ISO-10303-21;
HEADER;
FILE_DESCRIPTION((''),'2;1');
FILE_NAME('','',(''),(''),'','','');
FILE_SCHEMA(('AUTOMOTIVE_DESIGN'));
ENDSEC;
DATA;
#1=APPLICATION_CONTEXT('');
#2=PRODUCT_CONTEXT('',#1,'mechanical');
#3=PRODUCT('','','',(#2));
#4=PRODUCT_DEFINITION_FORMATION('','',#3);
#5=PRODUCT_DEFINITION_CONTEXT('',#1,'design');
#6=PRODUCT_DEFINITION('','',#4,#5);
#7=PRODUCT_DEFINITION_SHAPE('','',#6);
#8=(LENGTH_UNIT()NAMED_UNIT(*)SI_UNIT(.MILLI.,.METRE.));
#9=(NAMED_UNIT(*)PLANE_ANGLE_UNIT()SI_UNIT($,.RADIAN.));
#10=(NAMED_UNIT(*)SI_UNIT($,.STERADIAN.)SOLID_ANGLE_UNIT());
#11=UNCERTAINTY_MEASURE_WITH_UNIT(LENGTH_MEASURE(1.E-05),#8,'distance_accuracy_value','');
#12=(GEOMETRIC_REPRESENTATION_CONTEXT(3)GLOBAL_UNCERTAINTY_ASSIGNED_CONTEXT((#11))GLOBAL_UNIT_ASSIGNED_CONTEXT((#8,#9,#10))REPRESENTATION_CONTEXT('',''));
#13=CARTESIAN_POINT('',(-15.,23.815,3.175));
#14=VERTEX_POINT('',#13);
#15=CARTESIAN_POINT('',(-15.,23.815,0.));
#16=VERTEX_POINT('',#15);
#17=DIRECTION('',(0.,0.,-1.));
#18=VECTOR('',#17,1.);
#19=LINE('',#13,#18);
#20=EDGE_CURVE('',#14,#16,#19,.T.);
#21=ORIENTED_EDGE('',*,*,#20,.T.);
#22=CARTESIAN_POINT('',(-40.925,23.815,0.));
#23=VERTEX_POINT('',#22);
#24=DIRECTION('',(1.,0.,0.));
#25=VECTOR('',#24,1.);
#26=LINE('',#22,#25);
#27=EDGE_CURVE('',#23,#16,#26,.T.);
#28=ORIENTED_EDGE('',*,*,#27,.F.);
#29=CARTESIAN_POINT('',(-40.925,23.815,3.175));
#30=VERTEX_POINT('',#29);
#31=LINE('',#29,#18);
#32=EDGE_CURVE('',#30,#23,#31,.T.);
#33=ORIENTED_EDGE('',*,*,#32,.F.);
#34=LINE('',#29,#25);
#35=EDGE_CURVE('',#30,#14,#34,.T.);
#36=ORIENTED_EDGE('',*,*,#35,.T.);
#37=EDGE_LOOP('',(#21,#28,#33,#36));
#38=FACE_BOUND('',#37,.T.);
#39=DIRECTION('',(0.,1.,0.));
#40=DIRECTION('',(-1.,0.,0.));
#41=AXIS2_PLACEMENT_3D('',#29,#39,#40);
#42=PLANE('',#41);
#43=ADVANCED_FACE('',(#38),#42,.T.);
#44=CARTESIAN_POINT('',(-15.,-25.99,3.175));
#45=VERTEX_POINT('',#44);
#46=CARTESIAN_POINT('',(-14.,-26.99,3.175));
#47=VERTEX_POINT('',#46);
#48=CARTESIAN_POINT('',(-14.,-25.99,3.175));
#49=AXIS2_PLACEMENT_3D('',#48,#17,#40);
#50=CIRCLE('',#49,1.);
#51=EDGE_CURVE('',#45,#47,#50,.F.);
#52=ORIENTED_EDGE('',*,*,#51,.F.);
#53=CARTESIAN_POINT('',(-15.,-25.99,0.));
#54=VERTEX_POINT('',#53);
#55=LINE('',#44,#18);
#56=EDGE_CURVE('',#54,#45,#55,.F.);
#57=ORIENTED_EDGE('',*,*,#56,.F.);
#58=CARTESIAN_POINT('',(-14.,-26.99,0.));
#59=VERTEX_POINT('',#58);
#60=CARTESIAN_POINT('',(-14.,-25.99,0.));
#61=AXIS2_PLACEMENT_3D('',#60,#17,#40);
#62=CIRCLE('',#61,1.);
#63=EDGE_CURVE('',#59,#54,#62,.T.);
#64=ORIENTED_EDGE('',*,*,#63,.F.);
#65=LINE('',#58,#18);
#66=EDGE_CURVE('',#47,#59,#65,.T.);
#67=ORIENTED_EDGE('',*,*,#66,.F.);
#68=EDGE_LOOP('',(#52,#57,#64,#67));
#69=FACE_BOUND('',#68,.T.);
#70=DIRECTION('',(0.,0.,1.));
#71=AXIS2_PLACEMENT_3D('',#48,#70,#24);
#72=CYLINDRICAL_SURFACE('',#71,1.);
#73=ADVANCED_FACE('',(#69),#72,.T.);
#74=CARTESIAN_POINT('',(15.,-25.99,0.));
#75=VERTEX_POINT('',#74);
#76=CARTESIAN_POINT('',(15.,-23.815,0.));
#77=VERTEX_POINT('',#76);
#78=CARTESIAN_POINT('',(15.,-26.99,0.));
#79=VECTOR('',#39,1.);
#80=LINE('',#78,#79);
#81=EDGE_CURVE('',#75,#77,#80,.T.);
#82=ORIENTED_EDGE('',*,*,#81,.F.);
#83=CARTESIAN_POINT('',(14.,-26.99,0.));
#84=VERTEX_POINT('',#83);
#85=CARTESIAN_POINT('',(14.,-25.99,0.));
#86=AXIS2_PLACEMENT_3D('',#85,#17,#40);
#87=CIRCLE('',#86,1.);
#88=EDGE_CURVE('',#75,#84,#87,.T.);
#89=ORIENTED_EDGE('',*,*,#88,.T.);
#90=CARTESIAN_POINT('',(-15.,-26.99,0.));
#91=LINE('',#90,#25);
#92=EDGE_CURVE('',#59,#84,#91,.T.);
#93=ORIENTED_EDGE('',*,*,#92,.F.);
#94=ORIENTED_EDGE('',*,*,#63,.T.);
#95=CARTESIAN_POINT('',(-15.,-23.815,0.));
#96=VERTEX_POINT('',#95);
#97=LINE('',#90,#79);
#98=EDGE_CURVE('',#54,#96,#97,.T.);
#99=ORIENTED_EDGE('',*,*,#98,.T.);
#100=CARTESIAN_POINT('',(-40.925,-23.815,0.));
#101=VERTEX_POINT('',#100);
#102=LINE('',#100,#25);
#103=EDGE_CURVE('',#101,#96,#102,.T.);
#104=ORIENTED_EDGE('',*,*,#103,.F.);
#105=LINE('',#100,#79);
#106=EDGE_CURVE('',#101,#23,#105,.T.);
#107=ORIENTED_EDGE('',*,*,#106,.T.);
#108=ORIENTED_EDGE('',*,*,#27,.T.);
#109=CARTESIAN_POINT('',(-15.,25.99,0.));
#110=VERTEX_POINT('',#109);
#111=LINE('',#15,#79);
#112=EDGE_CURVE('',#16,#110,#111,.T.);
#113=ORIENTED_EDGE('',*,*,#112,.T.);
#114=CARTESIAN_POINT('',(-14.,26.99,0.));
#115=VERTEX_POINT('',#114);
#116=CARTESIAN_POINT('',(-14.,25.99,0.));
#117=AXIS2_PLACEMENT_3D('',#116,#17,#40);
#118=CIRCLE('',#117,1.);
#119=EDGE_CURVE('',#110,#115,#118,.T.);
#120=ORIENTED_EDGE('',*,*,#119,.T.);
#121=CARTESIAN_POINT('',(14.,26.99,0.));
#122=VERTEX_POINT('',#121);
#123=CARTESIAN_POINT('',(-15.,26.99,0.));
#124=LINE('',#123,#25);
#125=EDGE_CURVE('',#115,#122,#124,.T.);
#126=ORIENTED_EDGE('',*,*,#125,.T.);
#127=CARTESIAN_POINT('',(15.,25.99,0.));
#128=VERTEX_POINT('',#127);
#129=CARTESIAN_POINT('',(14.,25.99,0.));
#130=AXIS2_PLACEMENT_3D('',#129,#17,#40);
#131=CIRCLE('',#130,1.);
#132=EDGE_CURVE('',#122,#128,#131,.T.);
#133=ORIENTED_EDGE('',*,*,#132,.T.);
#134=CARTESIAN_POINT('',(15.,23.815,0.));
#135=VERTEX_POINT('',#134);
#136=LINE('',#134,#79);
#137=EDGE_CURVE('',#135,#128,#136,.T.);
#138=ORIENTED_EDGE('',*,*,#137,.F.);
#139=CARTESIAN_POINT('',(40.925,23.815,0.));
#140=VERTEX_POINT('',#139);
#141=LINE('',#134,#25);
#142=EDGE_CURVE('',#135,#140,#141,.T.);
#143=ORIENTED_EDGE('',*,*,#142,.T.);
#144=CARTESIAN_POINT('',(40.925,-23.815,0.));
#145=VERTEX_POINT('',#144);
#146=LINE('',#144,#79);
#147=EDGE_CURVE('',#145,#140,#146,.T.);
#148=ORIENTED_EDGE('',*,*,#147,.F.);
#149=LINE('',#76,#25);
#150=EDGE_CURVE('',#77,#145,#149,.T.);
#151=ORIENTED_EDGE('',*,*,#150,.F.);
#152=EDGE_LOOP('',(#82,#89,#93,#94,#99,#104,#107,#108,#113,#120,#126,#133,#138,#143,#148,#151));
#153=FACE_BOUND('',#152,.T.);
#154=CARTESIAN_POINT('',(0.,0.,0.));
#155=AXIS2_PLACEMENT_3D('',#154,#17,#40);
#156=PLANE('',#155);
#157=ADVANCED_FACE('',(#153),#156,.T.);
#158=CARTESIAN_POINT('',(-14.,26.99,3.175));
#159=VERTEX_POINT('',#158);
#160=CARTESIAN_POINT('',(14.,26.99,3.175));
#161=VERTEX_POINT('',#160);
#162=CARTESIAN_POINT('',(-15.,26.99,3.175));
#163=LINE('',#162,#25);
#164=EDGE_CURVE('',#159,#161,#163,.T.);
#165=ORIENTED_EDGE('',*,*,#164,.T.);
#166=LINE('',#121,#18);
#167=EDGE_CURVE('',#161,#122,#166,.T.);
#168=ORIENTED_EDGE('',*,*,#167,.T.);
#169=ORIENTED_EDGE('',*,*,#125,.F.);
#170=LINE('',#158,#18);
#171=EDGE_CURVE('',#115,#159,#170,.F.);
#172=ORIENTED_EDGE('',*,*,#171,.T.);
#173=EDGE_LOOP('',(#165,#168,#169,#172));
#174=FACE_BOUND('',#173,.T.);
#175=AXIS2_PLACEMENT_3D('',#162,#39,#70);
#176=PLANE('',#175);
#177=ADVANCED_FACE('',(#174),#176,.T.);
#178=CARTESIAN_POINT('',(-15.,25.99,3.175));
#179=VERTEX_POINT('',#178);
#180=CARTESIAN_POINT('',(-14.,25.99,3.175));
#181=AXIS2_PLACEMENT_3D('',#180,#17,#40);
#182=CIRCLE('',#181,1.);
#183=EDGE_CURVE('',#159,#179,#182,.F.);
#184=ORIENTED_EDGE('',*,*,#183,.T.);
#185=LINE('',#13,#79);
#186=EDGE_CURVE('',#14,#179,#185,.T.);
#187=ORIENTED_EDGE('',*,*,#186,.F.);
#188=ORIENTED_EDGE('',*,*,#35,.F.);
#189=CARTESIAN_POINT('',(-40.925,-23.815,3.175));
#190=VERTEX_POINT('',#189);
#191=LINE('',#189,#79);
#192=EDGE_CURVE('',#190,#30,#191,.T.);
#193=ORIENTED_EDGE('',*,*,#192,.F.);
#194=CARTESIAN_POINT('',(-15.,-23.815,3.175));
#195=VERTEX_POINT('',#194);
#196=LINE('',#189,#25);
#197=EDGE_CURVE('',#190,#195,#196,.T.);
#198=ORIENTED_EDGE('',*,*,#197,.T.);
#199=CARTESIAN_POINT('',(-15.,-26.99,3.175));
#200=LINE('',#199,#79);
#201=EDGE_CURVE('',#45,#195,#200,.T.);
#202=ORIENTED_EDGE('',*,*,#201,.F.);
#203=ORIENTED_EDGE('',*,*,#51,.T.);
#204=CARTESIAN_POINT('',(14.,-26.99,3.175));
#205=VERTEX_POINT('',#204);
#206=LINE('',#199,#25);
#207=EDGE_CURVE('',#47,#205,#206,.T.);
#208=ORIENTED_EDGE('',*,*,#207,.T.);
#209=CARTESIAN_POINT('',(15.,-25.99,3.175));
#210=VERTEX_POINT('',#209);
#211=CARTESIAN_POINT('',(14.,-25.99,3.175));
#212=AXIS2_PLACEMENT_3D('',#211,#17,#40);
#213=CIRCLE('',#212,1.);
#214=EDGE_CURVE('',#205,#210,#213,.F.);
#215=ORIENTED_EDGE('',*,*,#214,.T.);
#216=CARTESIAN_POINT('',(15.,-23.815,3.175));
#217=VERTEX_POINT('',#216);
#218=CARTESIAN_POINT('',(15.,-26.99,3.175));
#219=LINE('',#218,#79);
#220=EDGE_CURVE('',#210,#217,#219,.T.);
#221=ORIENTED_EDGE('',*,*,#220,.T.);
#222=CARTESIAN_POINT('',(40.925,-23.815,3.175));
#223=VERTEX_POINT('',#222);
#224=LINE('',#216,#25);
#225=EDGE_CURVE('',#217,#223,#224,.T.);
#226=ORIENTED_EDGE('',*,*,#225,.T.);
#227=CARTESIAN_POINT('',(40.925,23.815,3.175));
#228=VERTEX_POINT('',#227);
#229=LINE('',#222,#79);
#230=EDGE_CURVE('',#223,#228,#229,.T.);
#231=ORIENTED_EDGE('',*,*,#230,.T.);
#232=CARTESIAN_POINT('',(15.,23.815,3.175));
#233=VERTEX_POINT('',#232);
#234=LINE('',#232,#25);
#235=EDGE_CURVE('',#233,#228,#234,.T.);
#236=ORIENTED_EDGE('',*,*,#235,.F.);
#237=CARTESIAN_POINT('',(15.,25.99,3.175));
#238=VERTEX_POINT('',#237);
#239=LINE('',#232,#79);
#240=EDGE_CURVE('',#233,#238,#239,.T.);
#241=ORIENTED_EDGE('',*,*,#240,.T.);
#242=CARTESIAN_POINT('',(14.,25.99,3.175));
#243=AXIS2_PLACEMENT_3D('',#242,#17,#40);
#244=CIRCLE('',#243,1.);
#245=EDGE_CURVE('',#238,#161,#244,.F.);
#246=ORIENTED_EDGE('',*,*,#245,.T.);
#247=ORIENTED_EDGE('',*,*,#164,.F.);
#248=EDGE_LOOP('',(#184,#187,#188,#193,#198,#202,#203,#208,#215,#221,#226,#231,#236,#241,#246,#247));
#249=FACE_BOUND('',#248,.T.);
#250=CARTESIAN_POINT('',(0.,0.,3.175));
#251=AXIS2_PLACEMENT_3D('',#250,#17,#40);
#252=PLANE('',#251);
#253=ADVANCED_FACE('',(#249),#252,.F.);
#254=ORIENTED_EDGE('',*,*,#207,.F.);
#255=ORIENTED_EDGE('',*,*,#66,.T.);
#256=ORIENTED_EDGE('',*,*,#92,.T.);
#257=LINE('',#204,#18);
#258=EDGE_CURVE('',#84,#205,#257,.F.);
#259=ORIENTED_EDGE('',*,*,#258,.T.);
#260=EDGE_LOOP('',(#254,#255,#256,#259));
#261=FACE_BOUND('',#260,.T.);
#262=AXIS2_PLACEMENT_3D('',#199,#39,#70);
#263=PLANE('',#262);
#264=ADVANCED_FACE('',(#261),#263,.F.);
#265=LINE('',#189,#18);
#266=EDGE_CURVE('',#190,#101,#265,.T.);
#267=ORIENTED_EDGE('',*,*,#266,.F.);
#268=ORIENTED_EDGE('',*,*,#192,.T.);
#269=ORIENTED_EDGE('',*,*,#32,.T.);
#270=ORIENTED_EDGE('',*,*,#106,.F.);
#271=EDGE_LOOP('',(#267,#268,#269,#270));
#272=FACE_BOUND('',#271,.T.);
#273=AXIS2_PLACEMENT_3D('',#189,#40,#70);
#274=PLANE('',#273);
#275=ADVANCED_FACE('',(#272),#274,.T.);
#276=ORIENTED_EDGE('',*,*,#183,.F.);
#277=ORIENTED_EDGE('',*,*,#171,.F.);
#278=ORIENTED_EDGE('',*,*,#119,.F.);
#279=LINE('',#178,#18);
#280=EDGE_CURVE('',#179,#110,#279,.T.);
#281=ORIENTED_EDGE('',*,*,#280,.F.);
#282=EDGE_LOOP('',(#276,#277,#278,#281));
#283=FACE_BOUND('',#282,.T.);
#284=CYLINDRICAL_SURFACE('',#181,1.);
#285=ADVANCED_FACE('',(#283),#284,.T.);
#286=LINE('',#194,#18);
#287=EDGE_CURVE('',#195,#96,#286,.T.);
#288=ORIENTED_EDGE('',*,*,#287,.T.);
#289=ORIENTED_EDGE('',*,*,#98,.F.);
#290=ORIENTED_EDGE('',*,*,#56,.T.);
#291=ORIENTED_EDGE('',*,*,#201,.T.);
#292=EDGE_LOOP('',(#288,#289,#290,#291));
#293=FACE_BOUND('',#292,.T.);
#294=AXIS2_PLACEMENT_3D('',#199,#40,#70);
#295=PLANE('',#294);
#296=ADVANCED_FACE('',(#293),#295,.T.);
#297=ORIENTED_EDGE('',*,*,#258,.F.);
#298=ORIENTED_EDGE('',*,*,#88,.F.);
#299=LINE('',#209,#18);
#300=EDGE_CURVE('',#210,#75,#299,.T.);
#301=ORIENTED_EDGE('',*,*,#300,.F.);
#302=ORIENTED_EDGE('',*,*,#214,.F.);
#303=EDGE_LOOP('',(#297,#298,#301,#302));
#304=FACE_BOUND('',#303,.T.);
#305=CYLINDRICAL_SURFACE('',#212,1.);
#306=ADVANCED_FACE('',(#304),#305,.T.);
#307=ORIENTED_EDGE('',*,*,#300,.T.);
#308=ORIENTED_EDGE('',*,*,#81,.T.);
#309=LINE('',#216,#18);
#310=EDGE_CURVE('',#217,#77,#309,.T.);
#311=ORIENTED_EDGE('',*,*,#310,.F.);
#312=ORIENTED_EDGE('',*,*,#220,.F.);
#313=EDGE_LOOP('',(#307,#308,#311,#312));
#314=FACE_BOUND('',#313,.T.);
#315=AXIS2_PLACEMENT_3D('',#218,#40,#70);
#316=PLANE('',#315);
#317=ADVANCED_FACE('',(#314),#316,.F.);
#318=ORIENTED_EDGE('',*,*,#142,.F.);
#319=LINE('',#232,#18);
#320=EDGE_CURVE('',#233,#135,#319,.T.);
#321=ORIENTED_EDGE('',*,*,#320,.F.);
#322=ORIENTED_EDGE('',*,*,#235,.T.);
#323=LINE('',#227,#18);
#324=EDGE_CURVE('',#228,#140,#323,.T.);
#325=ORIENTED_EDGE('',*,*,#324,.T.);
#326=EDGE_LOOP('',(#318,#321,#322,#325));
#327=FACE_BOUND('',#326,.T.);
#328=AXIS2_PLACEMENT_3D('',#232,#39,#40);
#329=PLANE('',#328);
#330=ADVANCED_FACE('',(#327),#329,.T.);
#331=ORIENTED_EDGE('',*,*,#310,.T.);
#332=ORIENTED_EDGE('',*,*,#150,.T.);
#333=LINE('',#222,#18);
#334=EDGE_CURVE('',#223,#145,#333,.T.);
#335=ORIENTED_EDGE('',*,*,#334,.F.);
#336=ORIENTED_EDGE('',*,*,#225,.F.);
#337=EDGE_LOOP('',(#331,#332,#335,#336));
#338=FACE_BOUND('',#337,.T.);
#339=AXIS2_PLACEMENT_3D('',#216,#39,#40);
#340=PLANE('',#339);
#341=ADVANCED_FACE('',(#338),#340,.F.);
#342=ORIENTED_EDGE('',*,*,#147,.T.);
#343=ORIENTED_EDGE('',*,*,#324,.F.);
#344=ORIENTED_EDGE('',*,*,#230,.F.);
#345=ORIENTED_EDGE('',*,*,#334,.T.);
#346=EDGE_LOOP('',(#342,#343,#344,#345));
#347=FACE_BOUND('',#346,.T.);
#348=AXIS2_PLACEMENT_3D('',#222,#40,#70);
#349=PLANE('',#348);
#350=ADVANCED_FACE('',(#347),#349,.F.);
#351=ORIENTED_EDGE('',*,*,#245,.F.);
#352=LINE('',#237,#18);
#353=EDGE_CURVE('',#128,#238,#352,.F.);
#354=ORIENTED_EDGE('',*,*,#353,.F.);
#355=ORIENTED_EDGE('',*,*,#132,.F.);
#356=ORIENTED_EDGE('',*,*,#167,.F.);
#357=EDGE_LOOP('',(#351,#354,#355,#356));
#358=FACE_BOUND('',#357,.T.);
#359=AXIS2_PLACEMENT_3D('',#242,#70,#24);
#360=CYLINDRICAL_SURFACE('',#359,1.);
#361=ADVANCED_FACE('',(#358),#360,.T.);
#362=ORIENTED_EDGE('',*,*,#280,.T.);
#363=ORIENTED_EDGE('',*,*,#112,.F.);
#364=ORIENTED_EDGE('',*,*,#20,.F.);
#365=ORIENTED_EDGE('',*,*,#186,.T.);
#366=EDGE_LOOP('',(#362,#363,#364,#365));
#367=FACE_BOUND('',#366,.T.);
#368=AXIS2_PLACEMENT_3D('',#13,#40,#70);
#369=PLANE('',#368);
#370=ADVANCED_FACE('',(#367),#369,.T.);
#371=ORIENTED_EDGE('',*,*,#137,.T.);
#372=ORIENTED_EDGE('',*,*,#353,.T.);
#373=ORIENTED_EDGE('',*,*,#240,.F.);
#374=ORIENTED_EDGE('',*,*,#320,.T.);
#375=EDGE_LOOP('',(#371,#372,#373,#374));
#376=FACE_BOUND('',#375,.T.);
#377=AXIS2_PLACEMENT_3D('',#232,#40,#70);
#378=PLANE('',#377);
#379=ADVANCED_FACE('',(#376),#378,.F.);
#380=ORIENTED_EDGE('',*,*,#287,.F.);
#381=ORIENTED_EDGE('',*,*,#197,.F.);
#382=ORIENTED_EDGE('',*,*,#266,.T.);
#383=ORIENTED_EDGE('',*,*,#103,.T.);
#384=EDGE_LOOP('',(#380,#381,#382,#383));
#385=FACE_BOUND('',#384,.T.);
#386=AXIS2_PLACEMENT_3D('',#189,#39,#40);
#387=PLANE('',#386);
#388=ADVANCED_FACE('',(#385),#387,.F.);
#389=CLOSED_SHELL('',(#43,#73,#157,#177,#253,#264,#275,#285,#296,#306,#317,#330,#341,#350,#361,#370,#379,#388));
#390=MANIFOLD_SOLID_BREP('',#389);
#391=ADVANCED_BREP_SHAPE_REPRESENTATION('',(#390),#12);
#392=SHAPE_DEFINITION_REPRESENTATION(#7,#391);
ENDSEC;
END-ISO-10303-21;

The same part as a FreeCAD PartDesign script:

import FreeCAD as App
import Part
import Sketcher
from FreeCAD import Vector
Q = App.Units.Quantity


def edges_at(feature, points):
    """Names of the edges that pass closest to the given points."""
    edges = feature.Shape.Edges
    near = lambda p: min(range(len(edges)), key=lambda i: edges[i].distToShape(Part.Vertex(*p))[0])
    return sorted({f"Edge{near(p) + 1}" for p in points})


def add_polygon(sketch, points):
    """Adds a closed chain of lines whose ends are joined by coincident constraints."""
    first, n = sketch.GeometryCount, len(points)
    for a, b in zip(points, points[1:] + points[:1]):
        sketch.addGeometry(Part.LineSegment(App.Vector(*a, 0), App.Vector(*b, 0)), False)
    for i in range(n):
        sketch.addConstraint(Sketcher.Constraint("Coincident", first + i, 2, first + (i + 1) % n, 1))

doc = App.newDocument("Part")
body = doc.addObject("PartDesign::Body", "Body")

# Sketch on XY plane
sketch1 = body.newObject("Sketcher::SketchObject", "Sketch")
sketch1.AttachmentSupport = (doc.getObject("XY_Plane"), [""])
sketch1.MapMode = "FlatFace"
add_polygon(sketch1, [(-40.925, -23.815), (-15, -23.815), (-15, -26.99), (15, -26.99), (15, -23.815), (40.925, -23.815), (40.925, 23.815), (15, 23.815), (15, 26.99), (-15, 26.99), (-15, 23.815), (-40.925, 23.815)])  # lines 0-11
sketch1.addConstraint(Sketcher.Constraint("Horizontal", 0))
sketch1.addConstraint(Sketcher.Constraint("Vertical", 1))
sketch1.addConstraint(Sketcher.Constraint("Horizontal", 2))
sketch1.addConstraint(Sketcher.Constraint("Vertical", 3))
sketch1.addConstraint(Sketcher.Constraint("Horizontal", 4))
sketch1.addConstraint(Sketcher.Constraint("Vertical", 5))
sketch1.addConstraint(Sketcher.Constraint("Horizontal", 6))
sketch1.addConstraint(Sketcher.Constraint("Vertical", 7))
sketch1.addConstraint(Sketcher.Constraint("Horizontal", 8))
sketch1.addConstraint(Sketcher.Constraint("Vertical", 9))
sketch1.addConstraint(Sketcher.Constraint("Horizontal", 10))
sketch1.addConstraint(Sketcher.Constraint("Vertical", 11))
sketch1.addConstraint(Sketcher.Constraint("Symmetric", 0, 2, 6, 2, -1, 1))
sketch1.addConstraint(Sketcher.Constraint("Symmetric", 2, 2, 8, 2, -1, 1))
sketch1.addConstraint(Sketcher.Constraint("Symmetric", 4, 2, 10, 2, -1, 1))
sketch1.addConstraint(Sketcher.Constraint("Symmetric", 0, 2, 3, 2, -2))
sketch1.addConstraint(Sketcher.Constraint("DistanceX", 2, 1, 2, 2, Q("30 mm")))
sketch1.addConstraint(Sketcher.Constraint("DistanceY", 5, 1, 5, 2, Q("47.63 mm")))
sketch1.addConstraint(Sketcher.Constraint("DistanceX", 0, 1, 0, 2, Q("25.925 mm")))
sketch1.addConstraint(Sketcher.Constraint("DistanceY", 1, 2, 1, 1, Q("3.175 mm")))
pad1 = body.newObject("PartDesign::Pad", "Pad")
pad1.Profile = sketch1
pad1.Length = 3.175
doc.recompute()

fillet = body.newObject("PartDesign::Fillet", "Fillet")
fillet.Base = (pad1, edges_at(pad1, [
    (-15, -26.99, 1.587),
    (15, -26.99, 1.587),
    (15, 26.99, 1.587),
    (-15, 26.99, 1.587),
]))
fillet.Radius = 1

doc.recompute()
